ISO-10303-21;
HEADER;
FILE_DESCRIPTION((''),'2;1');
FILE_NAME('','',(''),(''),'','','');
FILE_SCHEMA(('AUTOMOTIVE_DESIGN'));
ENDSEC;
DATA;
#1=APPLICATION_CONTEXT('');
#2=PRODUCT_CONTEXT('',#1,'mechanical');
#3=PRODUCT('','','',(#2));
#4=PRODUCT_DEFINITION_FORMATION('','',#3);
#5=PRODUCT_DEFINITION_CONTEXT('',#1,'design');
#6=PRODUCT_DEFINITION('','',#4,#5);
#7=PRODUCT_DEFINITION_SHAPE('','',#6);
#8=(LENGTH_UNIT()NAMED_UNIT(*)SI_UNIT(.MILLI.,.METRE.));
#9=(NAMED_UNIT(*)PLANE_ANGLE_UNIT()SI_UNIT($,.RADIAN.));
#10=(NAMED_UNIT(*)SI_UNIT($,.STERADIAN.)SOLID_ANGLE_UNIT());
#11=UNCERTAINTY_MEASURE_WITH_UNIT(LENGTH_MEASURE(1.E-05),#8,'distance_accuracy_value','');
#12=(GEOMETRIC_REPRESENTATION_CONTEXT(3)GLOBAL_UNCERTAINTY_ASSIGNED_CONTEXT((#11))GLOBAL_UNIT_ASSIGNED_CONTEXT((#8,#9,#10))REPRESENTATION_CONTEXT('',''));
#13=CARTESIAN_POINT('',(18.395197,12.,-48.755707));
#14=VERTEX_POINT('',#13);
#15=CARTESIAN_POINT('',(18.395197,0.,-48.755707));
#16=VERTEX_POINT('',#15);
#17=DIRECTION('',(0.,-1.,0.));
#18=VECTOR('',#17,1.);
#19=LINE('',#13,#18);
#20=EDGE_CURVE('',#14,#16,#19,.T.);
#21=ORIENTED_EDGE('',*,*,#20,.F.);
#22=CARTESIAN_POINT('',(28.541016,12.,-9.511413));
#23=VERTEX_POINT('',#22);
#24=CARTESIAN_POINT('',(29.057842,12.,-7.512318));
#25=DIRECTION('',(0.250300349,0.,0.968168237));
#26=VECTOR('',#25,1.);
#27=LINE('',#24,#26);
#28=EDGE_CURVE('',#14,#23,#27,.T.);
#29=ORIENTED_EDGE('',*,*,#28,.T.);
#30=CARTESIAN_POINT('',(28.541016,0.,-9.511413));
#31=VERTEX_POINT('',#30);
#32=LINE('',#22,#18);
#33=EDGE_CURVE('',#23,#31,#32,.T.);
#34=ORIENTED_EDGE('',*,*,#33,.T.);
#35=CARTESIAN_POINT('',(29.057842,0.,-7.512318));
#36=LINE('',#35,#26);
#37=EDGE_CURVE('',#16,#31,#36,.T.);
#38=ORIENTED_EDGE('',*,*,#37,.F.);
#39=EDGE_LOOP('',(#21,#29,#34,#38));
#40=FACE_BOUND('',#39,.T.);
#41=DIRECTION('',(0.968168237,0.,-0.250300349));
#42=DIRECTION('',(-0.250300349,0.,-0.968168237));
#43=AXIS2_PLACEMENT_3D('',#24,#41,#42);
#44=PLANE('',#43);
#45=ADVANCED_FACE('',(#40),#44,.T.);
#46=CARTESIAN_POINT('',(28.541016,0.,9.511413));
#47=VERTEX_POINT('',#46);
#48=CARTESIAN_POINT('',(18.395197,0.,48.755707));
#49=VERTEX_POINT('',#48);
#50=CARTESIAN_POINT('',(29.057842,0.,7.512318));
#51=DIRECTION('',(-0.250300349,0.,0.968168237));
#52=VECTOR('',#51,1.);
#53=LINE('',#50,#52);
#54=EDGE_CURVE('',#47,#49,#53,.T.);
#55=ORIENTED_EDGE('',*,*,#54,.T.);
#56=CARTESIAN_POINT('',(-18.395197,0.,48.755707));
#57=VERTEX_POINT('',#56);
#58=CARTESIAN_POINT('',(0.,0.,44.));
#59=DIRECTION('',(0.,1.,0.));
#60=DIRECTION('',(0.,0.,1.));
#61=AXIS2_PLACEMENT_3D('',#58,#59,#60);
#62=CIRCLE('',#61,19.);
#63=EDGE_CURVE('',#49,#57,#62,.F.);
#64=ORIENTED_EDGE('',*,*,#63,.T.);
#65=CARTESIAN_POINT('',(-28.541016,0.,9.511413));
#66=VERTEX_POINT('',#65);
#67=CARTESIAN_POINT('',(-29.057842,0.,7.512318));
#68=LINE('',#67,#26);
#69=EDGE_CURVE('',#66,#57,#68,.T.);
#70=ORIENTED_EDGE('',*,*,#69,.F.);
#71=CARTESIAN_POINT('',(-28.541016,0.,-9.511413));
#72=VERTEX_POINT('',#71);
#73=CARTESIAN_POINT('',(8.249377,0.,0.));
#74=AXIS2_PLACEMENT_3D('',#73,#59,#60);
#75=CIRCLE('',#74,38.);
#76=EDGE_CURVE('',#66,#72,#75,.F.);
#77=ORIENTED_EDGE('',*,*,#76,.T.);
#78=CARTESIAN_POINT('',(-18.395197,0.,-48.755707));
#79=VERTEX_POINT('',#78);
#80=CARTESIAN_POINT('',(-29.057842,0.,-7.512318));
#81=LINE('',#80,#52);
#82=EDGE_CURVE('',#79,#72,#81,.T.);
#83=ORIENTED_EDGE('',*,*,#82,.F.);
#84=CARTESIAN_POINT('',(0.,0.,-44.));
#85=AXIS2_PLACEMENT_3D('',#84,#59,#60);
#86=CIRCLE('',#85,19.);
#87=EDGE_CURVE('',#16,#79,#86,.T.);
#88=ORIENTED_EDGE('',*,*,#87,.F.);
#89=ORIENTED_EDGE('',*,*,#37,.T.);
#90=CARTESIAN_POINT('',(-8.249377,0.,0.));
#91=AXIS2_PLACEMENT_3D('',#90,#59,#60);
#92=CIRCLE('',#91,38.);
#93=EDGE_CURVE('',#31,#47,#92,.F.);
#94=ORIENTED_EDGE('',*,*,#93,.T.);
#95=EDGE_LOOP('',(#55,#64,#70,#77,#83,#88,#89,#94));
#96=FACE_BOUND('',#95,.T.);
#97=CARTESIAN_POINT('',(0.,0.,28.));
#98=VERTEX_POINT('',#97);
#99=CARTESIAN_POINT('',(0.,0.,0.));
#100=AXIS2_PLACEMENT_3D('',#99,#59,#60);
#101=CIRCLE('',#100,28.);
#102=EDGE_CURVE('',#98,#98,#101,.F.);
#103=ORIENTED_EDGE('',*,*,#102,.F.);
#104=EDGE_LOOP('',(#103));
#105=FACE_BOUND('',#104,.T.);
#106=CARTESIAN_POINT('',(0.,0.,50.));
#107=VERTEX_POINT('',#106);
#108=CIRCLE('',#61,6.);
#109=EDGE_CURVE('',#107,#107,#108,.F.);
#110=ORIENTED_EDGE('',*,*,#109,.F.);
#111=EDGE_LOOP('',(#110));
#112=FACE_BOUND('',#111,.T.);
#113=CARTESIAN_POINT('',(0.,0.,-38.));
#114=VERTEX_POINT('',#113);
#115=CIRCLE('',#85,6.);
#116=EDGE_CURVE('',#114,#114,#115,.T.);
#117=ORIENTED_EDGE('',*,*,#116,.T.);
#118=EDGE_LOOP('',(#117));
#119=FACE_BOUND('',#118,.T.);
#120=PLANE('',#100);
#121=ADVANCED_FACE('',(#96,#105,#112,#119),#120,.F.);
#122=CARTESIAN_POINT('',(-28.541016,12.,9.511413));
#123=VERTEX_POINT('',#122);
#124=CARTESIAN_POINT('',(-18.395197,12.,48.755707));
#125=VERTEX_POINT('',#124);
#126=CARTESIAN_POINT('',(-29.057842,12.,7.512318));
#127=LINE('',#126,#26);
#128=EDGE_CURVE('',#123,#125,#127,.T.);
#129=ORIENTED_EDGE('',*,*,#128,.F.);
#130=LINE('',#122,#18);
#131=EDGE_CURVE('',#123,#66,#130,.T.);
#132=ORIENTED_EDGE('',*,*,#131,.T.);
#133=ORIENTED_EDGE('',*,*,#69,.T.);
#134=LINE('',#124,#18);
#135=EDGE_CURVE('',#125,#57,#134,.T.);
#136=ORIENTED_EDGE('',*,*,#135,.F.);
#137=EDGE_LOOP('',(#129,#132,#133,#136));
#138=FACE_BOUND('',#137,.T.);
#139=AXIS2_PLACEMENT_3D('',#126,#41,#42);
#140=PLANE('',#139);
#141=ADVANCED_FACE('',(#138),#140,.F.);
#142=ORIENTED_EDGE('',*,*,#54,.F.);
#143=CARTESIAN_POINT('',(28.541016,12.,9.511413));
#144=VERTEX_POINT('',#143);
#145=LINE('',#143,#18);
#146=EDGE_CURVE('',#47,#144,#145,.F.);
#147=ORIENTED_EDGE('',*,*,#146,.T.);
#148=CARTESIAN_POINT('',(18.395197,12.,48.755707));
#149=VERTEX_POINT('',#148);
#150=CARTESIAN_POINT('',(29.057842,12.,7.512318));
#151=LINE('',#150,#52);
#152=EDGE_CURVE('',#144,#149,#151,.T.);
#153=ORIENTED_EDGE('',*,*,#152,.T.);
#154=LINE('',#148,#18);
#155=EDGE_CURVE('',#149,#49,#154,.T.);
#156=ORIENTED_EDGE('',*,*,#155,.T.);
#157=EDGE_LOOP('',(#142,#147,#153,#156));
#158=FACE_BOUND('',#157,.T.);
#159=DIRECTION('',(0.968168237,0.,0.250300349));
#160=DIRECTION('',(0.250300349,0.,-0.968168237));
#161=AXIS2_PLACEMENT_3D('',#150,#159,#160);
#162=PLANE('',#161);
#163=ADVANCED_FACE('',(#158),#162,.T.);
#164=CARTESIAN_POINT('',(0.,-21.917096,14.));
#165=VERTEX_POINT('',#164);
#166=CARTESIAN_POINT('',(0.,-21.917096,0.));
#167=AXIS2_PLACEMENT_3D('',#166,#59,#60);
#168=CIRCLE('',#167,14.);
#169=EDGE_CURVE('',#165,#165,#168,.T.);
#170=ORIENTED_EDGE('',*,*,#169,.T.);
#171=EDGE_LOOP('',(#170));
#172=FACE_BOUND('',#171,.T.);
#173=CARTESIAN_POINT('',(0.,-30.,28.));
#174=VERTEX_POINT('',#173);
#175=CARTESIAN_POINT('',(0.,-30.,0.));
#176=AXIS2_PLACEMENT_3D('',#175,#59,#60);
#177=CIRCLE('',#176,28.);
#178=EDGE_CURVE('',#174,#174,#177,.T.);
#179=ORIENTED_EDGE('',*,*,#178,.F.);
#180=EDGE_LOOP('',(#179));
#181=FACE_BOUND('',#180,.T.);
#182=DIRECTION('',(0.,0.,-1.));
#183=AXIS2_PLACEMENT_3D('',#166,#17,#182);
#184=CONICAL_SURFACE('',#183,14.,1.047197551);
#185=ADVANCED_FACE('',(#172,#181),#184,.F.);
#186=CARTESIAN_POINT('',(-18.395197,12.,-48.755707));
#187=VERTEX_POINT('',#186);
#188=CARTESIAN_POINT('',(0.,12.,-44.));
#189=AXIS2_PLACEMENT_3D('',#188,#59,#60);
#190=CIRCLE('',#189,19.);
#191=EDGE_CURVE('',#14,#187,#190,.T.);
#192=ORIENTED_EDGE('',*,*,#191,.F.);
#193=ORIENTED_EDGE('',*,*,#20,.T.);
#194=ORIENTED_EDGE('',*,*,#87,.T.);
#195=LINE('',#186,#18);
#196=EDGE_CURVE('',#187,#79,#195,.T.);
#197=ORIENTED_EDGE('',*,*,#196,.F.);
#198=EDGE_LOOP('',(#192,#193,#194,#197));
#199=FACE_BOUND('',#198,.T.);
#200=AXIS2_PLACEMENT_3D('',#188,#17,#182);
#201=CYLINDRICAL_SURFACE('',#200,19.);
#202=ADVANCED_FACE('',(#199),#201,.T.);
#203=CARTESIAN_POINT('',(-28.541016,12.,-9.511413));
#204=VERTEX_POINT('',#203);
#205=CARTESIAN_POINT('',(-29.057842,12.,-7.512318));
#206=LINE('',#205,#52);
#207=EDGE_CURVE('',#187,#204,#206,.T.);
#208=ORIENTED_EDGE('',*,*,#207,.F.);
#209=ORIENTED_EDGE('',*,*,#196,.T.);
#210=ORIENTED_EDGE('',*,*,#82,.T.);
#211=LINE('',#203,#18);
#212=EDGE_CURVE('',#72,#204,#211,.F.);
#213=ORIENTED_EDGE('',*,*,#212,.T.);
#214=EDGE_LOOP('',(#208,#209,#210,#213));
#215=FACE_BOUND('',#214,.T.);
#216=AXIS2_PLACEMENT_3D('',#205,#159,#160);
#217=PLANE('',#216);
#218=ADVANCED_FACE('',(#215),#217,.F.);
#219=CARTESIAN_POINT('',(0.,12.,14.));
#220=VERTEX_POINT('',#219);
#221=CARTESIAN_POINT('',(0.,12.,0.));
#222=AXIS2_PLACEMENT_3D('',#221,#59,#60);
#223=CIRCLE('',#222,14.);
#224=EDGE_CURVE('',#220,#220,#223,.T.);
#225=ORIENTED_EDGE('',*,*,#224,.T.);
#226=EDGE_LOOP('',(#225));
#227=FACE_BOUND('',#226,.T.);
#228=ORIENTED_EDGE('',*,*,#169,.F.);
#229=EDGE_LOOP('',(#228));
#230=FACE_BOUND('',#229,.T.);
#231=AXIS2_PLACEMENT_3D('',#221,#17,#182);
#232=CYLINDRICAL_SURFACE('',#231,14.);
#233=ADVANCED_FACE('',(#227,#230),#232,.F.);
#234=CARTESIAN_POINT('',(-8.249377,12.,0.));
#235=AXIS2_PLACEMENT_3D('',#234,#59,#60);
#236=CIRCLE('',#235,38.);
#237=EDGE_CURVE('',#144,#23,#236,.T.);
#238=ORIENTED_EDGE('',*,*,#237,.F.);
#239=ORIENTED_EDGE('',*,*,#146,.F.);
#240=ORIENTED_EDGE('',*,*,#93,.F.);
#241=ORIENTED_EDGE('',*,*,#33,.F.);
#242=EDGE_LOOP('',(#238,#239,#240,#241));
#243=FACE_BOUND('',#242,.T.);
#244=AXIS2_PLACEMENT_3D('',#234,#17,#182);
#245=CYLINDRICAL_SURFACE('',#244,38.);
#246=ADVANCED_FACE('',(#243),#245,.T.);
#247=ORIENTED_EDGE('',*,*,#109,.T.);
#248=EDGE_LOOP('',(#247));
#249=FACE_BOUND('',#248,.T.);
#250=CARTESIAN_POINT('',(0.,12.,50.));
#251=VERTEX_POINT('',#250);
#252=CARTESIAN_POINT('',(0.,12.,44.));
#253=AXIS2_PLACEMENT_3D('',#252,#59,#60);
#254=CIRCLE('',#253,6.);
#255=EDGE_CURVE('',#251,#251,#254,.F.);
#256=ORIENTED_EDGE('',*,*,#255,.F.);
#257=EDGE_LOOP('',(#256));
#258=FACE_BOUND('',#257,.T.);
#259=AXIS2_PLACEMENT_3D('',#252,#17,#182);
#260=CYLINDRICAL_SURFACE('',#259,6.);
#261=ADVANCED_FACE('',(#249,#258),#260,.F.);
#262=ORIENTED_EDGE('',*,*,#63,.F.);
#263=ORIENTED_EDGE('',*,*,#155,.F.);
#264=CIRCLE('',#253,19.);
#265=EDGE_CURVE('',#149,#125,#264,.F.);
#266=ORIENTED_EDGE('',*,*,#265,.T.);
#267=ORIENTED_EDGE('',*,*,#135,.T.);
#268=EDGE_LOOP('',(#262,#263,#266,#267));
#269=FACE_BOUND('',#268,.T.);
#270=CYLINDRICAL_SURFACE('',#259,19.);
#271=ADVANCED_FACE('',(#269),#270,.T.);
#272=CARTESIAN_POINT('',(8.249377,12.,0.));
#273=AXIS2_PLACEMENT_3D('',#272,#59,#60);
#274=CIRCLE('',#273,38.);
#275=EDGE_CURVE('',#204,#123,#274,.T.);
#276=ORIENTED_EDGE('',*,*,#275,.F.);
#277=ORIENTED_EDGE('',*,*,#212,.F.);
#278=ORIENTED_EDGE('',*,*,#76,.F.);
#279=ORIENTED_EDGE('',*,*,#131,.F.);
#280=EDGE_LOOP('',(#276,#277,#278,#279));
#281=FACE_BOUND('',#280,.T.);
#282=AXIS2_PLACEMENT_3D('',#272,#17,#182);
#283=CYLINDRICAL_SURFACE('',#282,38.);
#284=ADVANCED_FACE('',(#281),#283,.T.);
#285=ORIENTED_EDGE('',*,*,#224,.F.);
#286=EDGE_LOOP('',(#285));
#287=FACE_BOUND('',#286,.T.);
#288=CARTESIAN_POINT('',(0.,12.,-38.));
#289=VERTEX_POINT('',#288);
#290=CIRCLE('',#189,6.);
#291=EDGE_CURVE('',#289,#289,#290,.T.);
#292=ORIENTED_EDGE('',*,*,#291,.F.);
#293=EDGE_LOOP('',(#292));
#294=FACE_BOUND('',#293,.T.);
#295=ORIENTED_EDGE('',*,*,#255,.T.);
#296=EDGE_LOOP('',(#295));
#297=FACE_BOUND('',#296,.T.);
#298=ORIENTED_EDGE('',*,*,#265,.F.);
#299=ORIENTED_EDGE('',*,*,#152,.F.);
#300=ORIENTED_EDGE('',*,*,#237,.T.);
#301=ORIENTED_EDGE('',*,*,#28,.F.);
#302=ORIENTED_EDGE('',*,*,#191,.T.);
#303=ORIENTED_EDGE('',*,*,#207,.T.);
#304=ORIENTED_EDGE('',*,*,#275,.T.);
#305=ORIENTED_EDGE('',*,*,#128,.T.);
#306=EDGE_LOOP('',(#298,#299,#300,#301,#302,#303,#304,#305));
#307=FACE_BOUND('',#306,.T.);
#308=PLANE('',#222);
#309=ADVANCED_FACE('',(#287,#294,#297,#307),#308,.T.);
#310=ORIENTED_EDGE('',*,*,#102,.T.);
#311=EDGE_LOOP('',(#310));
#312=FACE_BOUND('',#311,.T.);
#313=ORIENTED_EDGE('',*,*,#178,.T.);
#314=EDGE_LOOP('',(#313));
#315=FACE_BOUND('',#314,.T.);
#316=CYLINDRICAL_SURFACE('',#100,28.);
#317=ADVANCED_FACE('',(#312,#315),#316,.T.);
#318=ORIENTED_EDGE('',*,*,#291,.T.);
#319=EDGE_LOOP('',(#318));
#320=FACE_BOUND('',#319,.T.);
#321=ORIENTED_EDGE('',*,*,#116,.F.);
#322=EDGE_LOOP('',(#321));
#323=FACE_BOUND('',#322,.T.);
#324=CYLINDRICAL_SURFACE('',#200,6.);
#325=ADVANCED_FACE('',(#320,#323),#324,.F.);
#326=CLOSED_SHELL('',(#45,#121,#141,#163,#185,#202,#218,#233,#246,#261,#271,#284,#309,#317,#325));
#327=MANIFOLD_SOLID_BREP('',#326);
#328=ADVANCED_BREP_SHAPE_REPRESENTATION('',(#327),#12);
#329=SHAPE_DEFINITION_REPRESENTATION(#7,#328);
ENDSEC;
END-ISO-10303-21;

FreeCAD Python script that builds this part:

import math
import FreeCAD as App
import Part
import Sketcher
Q = App.Units.Quantity


def edges_at(feature, points):
    """Names of the edges that pass closest to the given points."""
    edges = feature.Shape.Edges
    near = lambda p: min(range(len(edges)), key=lambda i: edges[i].distToShape(Part.Vertex(*p))[0])
    return sorted({f"Edge{near(p) + 1}" for p in points})

doc = App.newDocument("Part")
body = doc.addObject("PartDesign::Body", "Body")

sketch1 = body.newObject("Sketcher::SketchObject", "Sketch")
sketch1.AttachmentSupport = (doc.getObject("XZ_Plane"), [""])
sketch1.MapMode = "FlatFace"
sketch1.addGeometry([
    Part.LineSegment(App.Vector(31, 0, 0), App.Vector(18, -49, 0)),
    Part.ArcOfCircle(Part.Circle(App.Vector(0, -44, 0), App.Vector(0, 0, 1), 19), math.radians(-166), math.radians(-14)),
    Part.LineSegment(App.Vector(-18, -49, 0), App.Vector(-31, 0, 0)),
    Part.LineSegment(App.Vector(-31, 0, 0), App.Vector(-18, 49, 0)),
    Part.ArcOfCircle(Part.Circle(App.Vector(0, 44, 0), App.Vector(0, 0, 1), 19), math.radians(14), math.radians(166)),
    Part.LineSegment(App.Vector(18, 49, 0), App.Vector(31, 0, 0)),
    Part.Circle(App.Vector(0, 0, 0), App.Vector(0, 0, 1), 14),
    Part.Circle(App.Vector(0, -44, 0), App.Vector(0, 0, 1), 6),
    Part.Circle(App.Vector(0, 44, 0), App.Vector(0, 0, 1), 6),
], False)
sketch1.addConstraint([
    Sketcher.Constraint("Tangent", 0, 2, 1, 2),
    Sketcher.Constraint("Tangent", 1, 1, 2, 1),
    Sketcher.Constraint("Coincident", 2, 2, 3, 1),
    Sketcher.Constraint("Tangent", 3, 2, 4, 2),
    Sketcher.Constraint("Tangent", 4, 1, 5, 1),
    Sketcher.Constraint("Coincident", 5, 2, 0, 1),
    Sketcher.Constraint("Coincident", 6, 3, -1, 1),
    Sketcher.Constraint("Coincident", 7, 3, 1, 3),
    Sketcher.Constraint("Coincident", 8, 3, 4, 3),
    Sketcher.Constraint("Equal", 1, 4),
    Sketcher.Constraint("Equal", 7, 8),
    Sketcher.Constraint("Symmetric", 1, 3, 4, 3, -1, 1),
    Sketcher.Constraint("Symmetric", 2, 2, 5, 2, -1, 1),
    Sketcher.Constraint("Symmetric", 0, 2, 1, 1, -2),
    Sketcher.Constraint("Diameter", 6, 28.0),
    Sketcher.Constraint("Diameter", 7, 12.0),
    Sketcher.Constraint("Radius", 1, 19.0),
    Sketcher.Constraint("DistanceY", 1, 3, -1, 1, 44.0),
    Sketcher.Constraint("DistanceX", 2, 2, -1, 1, 31.0),
])
pad1 = body.newObject("PartDesign::Pad", "Pad")
pad1.Profile = sketch1
pad1.Length = 12
pad1.Reversed = True
doc.recompute()

fillet = body.newObject("PartDesign::Fillet", "Fillet")
fillet.Base = (pad1, edges_at(pad1, [(-31, 6, 0), (31, 6, 0)]))
fillet.Radius = 38

sketch2 = body.newObject("Sketcher::SketchObject", "Sketch001")
sketch2.AttachmentSupport = (doc.getObject("XY_Plane"), [""])
sketch2.MapMode = "FlatFace"
sketch2.addGeometry([
    Part.LineSegment(App.Vector(28, 0, 0), App.Vector(14, 0, 0)),
    Part.LineSegment(App.Vector(14, 0, 0), App.Vector(14, -22, 0)),
    Part.LineSegment(App.Vector(14, -22, 0), App.Vector(28, -30, 0)),
    Part.LineSegment(App.Vector(28, -30, 0), App.Vector(28, 0, 0)),
], False)
sketch2.addConstraint([
    Sketcher.Constraint("Coincident", 0, 2, 1, 1),
    Sketcher.Constraint("Coincident", 1, 2, 2, 1),
    Sketcher.Constraint("Coincident", 2, 2, 3, 1),
    Sketcher.Constraint("Coincident", 3, 2, 0, 1),
    Sketcher.Constraint("Horizontal", 0),
    Sketcher.Constraint("Vertical", 1),
    Sketcher.Constraint("Vertical", 3),
    Sketcher.Constraint("PointOnObject", 0, 2, -1),
    Sketcher.Constraint("DistanceX", 0, 2, 0, 1, 14.0),
    Sketcher.Constraint("DistanceY", 3, 1, 3, 2, 30.0),
    Sketcher.Constraint("Angle", 2, Q("-30 deg")),
    Sketcher.Constraint("DistanceX", -1, 1, 0, 2, 14.0),
])
revolution = body.newObject("PartDesign::Revolution", "Revolution")
revolution.Profile = sketch2
revolution.ReferenceAxis = (sketch2, ["V_Axis"])
revolution.Angle = 360

doc.recompute()
